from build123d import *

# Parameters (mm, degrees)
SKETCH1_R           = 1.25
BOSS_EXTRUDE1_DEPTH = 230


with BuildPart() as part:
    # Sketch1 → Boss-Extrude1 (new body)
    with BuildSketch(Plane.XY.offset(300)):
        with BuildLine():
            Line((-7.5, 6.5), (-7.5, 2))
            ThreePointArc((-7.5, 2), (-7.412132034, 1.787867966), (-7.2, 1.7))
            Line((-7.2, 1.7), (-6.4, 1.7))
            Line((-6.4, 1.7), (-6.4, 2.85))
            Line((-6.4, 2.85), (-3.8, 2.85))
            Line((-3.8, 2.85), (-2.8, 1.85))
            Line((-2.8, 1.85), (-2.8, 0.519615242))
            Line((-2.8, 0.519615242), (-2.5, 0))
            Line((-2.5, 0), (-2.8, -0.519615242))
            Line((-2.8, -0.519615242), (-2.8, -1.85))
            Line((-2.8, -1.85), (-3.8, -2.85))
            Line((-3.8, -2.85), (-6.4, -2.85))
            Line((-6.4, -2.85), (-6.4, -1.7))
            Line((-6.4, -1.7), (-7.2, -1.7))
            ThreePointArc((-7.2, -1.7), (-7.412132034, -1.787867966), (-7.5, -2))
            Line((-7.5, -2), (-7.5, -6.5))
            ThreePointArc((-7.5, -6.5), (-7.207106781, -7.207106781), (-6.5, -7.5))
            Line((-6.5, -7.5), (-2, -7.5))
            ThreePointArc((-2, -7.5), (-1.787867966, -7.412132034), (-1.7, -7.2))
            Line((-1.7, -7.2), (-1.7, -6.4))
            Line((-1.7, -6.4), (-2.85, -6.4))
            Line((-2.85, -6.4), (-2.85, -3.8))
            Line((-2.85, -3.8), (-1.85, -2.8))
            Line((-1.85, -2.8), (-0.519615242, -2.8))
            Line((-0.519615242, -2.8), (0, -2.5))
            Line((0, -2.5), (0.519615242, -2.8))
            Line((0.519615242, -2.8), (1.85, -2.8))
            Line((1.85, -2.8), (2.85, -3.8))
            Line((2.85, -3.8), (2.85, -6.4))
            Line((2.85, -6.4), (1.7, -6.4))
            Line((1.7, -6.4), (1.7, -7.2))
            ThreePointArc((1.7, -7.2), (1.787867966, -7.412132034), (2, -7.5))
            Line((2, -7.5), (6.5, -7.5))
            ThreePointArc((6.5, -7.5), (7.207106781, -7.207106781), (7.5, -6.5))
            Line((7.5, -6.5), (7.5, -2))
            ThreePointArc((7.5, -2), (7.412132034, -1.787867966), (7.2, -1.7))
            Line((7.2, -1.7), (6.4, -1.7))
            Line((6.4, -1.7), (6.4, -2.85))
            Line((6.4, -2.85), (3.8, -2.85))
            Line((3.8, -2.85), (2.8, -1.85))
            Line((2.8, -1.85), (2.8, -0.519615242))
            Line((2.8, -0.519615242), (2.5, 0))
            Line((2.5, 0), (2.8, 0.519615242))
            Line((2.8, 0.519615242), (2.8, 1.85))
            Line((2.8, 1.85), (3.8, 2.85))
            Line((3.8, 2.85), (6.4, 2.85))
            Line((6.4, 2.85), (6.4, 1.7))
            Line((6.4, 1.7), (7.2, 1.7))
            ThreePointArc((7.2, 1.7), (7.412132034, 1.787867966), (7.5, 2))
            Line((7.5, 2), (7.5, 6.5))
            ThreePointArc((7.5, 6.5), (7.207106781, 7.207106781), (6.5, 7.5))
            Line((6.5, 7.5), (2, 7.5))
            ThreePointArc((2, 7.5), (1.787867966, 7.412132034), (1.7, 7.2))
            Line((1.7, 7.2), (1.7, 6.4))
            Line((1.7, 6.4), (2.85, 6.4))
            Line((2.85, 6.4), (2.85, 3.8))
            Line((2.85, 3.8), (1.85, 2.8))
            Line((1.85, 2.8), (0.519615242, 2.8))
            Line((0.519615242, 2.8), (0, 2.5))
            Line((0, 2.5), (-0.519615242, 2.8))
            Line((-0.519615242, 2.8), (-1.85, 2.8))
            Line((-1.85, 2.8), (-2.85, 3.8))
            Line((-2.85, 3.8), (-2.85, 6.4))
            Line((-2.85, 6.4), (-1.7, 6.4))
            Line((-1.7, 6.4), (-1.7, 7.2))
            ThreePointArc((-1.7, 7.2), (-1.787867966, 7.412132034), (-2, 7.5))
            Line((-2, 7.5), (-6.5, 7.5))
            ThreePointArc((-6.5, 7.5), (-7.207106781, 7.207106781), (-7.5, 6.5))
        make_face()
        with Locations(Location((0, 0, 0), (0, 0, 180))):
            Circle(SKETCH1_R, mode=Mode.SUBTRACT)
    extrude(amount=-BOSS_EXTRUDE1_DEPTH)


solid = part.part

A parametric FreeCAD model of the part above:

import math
import FreeCAD as App
import Part
import Sketcher
from FreeCAD import Vector
Q = App.Units.Quantity

doc = App.newDocument("Part")
body = doc.addObject("PartDesign::Body", "Body")

sketch1 = body.newObject("Sketcher::SketchObject", "Sketch")
sketch1.AttachmentSupport = (doc.getObject("XY_Plane"), [""])
sketch1.MapMode = "FlatFace"
sketch1.AttachmentOffset = App.Placement(Vector(0, 0, 300), App.Rotation())
sketch1.addGeometry(Part.LineSegment(Vector(-7.5, 6.5, 0), Vector(-7.5, 2, 0)), False)
sketch1.addGeometry(Part.ArcOfCircle(Part.Circle(Vector(-7.2, 2, 0), Vector(0, 0, 1), 0.3), math.radians(-180), math.radians(-90)), False)
sketch1.addGeometry(Part.LineSegment(Vector(-7.2, 1.7, 0), Vector(-6.4, 1.7, 0)), False)
sketch1.addGeometry(Part.LineSegment(Vector(-6.4, 1.7, 0), Vector(-6.4, 2.85, 0)), False)
sketch1.addGeometry(Part.LineSegment(Vector(-6.4, 2.85, 0), Vector(-3.8, 2.85, 0)), False)
sketch1.addGeometry(Part.LineSegment(Vector(-3.8, 2.85, 0), Vector(-2.8, 1.85, 0)), False)
sketch1.addGeometry(Part.LineSegment(Vector(-2.8, 1.85, 0), Vector(-2.8, 0.52, 0)), False)
sketch1.addGeometry(Part.LineSegment(Vector(-2.8, 0.52, 0), Vector(-2.5, 0, 0)), False)
sketch1.addGeometry(Part.LineSegment(Vector(-2.5, 0, 0), Vector(-2.8, -0.52, 0)), False)
sketch1.addGeometry(Part.LineSegment(Vector(-2.8, -0.52, 0), Vector(-2.8, -1.85, 0)), False)
sketch1.addGeometry(Part.LineSegment(Vector(-2.8, -1.85, 0), Vector(-3.8, -2.85, 0)), False)
sketch1.addGeometry(Part.LineSegment(Vector(-3.8, -2.85, 0), Vector(-6.4, -2.85, 0)), False)
sketch1.addGeometry(Part.LineSegment(Vector(-6.4, -2.85, 0), Vector(-6.4, -1.7, 0)), False)
sketch1.addGeometry(Part.LineSegment(Vector(-6.4, -1.7, 0), Vector(-7.2, -1.7, 0)), False)
sketch1.addGeometry(Part.ArcOfCircle(Part.Circle(Vector(-7.2, -2, 0), Vector(0, 0, 1), 0.3), math.radians(90), math.radians(180)), False)
sketch1.addGeometry(Part.LineSegment(Vector(-7.5, -2, 0), Vector(-7.5, -6.5, 0)), False)
sketch1.addGeometry(Part.ArcOfCircle(Part.Circle(Vector(-6.5, -6.5, 0), Vector(0, 0, 1), 1), math.radians(-180), math.radians(-90)), False)
sketch1.addGeometry(Part.LineSegment(Vector(-6.5, -7.5, 0), Vector(-2, -7.5, 0)), False)
sketch1.addGeometry(Part.ArcOfCircle(Part.Circle(Vector(-2, -7.2, 0), Vector(0, 0, 1), 0.3), math.radians(-90), math.radians(0)), False)
sketch1.addGeometry(Part.LineSegment(Vector(-1.7, -7.2, 0), Vector(-1.7, -6.4, 0)), False)
sketch1.addGeometry(Part.LineSegment(Vector(-1.7, -6.4, 0), Vector(-2.85, -6.4, 0)), False)
sketch1.addGeometry(Part.LineSegment(Vector(-2.85, -6.4, 0), Vector(-2.85, -3.8, 0)), False)
sketch1.addGeometry(Part.LineSegment(Vector(-2.85, -3.8, 0), Vector(-1.85, -2.8, 0)), False)
sketch1.addGeometry(Part.LineSegment(Vector(-1.85, -2.8, 0), Vector(-0.52, -2.8, 0)), False)
sketch1.addGeometry(Part.LineSegment(Vector(-0.52, -2.8, 0), Vector(0, -2.5, 0)), False)
sketch1.addGeometry(Part.LineSegment(Vector(0, -2.5, 0), Vector(0.52, -2.8, 0)), False)
sketch1.addGeometry(Part.LineSegment(Vector(0.52, -2.8, 0), Vector(1.85, -2.8, 0)), False)
sketch1.addGeometry(Part.LineSegment(Vector(1.85, -2.8, 0), Vector(2.85, -3.8, 0)), False)
sketch1.addGeometry(Part.LineSegment(Vector(2.85, -3.8, 0), Vector(2.85, -6.4, 0)), False)
sketch1.addGeometry(Part.LineSegment(Vector(2.85, -6.4, 0), Vector(1.7, -6.4, 0)), False)
sketch1.addGeometry(Part.LineSegment(Vector(1.7, -6.4, 0), Vector(1.7, -7.2, 0)), False)
sketch1.addGeometry(Part.ArcOfCircle(Part.Circle(Vector(2, -7.2, 0), Vector(0, 0, 1), 0.3), math.radians(-180), math.radians(-90)), False)
sketch1.addGeometry(Part.LineSegment(Vector(2, -7.5, 0), Vector(6.5, -7.5, 0)), False)
sketch1.addGeometry(Part.ArcOfCircle(Part.Circle(Vector(6.5, -6.5, 0), Vector(0, 0, 1), 1), math.radians(-90), math.radians(0)), False)
sketch1.addGeometry(Part.LineSegment(Vector(7.5, -6.5, 0), Vector(7.5, -2, 0)), False)
sketch1.addGeometry(Part.ArcOfCircle(Part.Circle(Vector(7.2, -2, 0), Vector(0, 0, 1), 0.3), math.radians(0), math.radians(90)), False)
sketch1.addGeometry(Part.LineSegment(Vector(7.2, -1.7, 0), Vector(6.4, -1.7, 0)), False)
sketch1.addGeometry(Part.LineSegment(Vector(6.4, -1.7, 0), Vector(6.4, -2.85, 0)), False)
sketch1.addGeometry(Part.LineSegment(Vector(6.4, -2.85, 0), Vector(3.8, -2.85, 0)), False)
sketch1.addGeometry(Part.LineSegment(Vector(3.8, -2.85, 0), Vector(2.8, -1.85, 0)), False)
sketch1.addGeometry(Part.LineSegment(Vector(2.8, -1.85, 0), Vector(2.8, -0.52, 0)), False)
sketch1.addGeometry(Part.LineSegment(Vector(2.8, -0.52, 0), Vector(2.5, 0, 0)), False)
sketch1.addGeometry(Part.LineSegment(Vector(2.5, 0, 0), Vector(2.8, 0.52, 0)), False)
sketch1.addGeometry(Part.LineSegment(Vector(2.8, 0.52, 0), Vector(2.8, 1.85, 0)), False)
sketch1.addGeometry(Part.LineSegment(Vector(2.8, 1.85, 0), Vector(3.8, 2.85, 0)), False)
sketch1.addGeometry(Part.LineSegment(Vector(3.8, 2.85, 0), Vector(6.4, 2.85, 0)), False)
sketch1.addGeometry(Part.LineSegment(Vector(6.4, 2.85, 0), Vector(6.4, 1.7, 0)), False)
sketch1.addGeometry(Part.LineSegment(Vector(6.4, 1.7, 0), Vector(7.2, 1.7, 0)), False)
sketch1.addGeometry(Part.ArcOfCircle(Part.Circle(Vector(7.2, 2, 0), Vector(0, 0, 1), 0.3), math.radians(-90), math.radians(0)), False)
sketch1.addGeometry(Part.LineSegment(Vector(7.5, 2, 0), Vector(7.5, 6.5, 0)), False)
sketch1.addGeometry(Part.ArcOfCircle(Part.Circle(Vector(6.5, 6.5, 0), Vector(0, 0, 1), 1), math.radians(0), math.radians(90)), False)
sketch1.addGeometry(Part.LineSegment(Vector(6.5, 7.5, 0), Vector(2, 7.5, 0)), False)
sketch1.addGeometry(Part.ArcOfCircle(Part.Circle(Vector(2, 7.2, 0), Vector(0, 0, 1), 0.3), math.radians(90), math.radians(180)), False)
sketch1.addGeometry(Part.LineSegment(Vector(1.7, 7.2, 0), Vector(1.7, 6.4, 0)), False)
sketch1.addGeometry(Part.LineSegment(Vector(1.7, 6.4, 0), Vector(2.85, 6.4, 0)), False)
sketch1.addGeometry(Part.LineSegment(Vector(2.85, 6.4, 0), Vector(2.85, 3.8, 0)), False)
sketch1.addGeometry(Part.LineSegment(Vector(2.85, 3.8, 0), Vector(1.85, 2.8, 0)), False)
sketch1.addGeometry(Part.LineSegment(Vector(1.85, 2.8, 0), Vector(0.52, 2.8, 0)), False)
sketch1.addGeometry(Part.LineSegment(Vector(0.52, 2.8, 0), Vector(0, 2.5, 0)), False)
sketch1.addGeometry(Part.LineSegment(Vector(0, 2.5, 0), Vector(-0.52, 2.8, 0)), False)
sketch1.addGeometry(Part.LineSegment(Vector(-0.52, 2.8, 0), Vector(-1.85, 2.8, 0)), False)
sketch1.addGeometry(Part.LineSegment(Vector(-1.85, 2.8, 0), Vector(-2.85, 3.8, 0)), False)
sketch1.addGeometry(Part.LineSegment(Vector(-2.85, 3.8, 0), Vector(-2.85, 6.4, 0)), False)
sketch1.addGeometry(Part.LineSegment(Vector(-2.85, 6.4, 0), Vector(-1.7, 6.4, 0)), False)
sketch1.addGeometry(Part.LineSegment(Vector(-1.7, 6.4, 0), Vector(-1.7, 7.2, 0)), False)
sketch1.addGeometry(Part.ArcOfCircle(Part.Circle(Vector(-2, 7.2, 0), Vector(0, 0, 1), 0.3), math.radians(0), math.radians(90)), False)
sketch1.addGeometry(Part.LineSegment(Vector(-2, 7.5, 0), Vector(-6.5, 7.5, 0)), False)
sketch1.addGeometry(Part.ArcOfCircle(Part.Circle(Vector(-6.5, 6.5, 0), Vector(0, 0, 1), 1), math.radians(90), math.radians(180)), False)
sketch1.addGeometry(Part.Circle(Vector(0, 0, 0), Vector(0, 0, 1), 1.25), False)
sketch1.addConstraint(Sketcher.Constraint("Tangent", 0, 2, 1, 1))
sketch1.addConstraint(Sketcher.Constraint("Tangent", 1, 2, 2, 1))
sketch1.addConstraint(Sketcher.Constraint("Coincident", 2, 2, 3, 1))
sketch1.addConstraint(Sketcher.Constraint("Coincident", 3, 2, 4, 1))
sketch1.addConstraint(Sketcher.Constraint("Coincident", 4, 2, 5, 1))
sketch1.addConstraint(Sketcher.Constraint("Coincident", 5, 2, 6, 1))
sketch1.addConstraint(Sketcher.Constraint("Coincident", 6, 2, 7, 1))
sketch1.addConstraint(Sketcher.Constraint("Coincident", 7, 2, 8, 1))
sketch1.addConstraint(Sketcher.Constraint("Coincident", 8, 2, 9, 1))
sketch1.addConstraint(Sketcher.Constraint("Coincident", 9, 2, 10, 1))
sketch1.addConstraint(Sketcher.Constraint("Coincident", 10, 2, 11, 1))
sketch1.addConstraint(Sketcher.Constraint("Coincident", 11, 2, 12, 1))
sketch1.addConstraint(Sketcher.Constraint("Coincident", 12, 2, 13, 1))
sketch1.addConstraint(Sketcher.Constraint("Tangent", 13, 2, 14, 1))
sketch1.addConstraint(Sketcher.Constraint("Tangent", 14, 2, 15, 1))
sketch1.addConstraint(Sketcher.Constraint("Tangent", 15, 2, 16, 1))
sketch1.addConstraint(Sketcher.Constraint("Tangent", 16, 2, 17, 1))
sketch1.addConstraint(Sketcher.Constraint("Tangent", 17, 2, 18, 1))
sketch1.addConstraint(Sketcher.Constraint("Tangent", 18, 2, 19, 1))
sketch1.addConstraint(Sketcher.Constraint("Coincident", 19, 2, 20, 1))
sketch1.addConstraint(Sketcher.Constraint("Coincident", 20, 2, 21, 1))
sketch1.addConstraint(Sketcher.Constraint("Coincident", 21, 2, 22, 1))
sketch1.addConstraint(Sketcher.Constraint("Coincident", 22, 2, 23, 1))
sketch1.addConstraint(Sketcher.Constraint("Coincident", 23, 2, 24, 1))
sketch1.addConstraint(Sketcher.Constraint("Coincident", 24, 2, 25, 1))
sketch1.addConstraint(Sketcher.Constraint("Coincident", 25, 2, 26, 1))
sketch1.addConstraint(Sketcher.Constraint("Coincident", 26, 2, 27, 1))
sketch1.addConstraint(Sketcher.Constraint("Coincident", 27, 2, 28, 1))
sketch1.addConstraint(Sketcher.Constraint("Coincident", 28, 2, 29, 1))
sketch1.addConstraint(Sketcher.Constraint("Coincident", 29, 2, 30, 1))
sketch1.addConstraint(Sketcher.Constraint("Tangent", 30, 2, 31, 1))
sketch1.addConstraint(Sketcher.Constraint("Tangent", 31, 2, 32, 1))
sketch1.addConstraint(Sketcher.Constraint("Tangent", 32, 2, 33, 1))
sketch1.addConstraint(Sketcher.Constraint("Tangent", 33, 2, 34, 1))
sketch1.addConstraint(Sketcher.Constraint("Tangent", 34, 2, 35, 1))
sketch1.addConstraint(Sketcher.Constraint("Tangent", 35, 2, 36, 1))
sketch1.addConstraint(Sketcher.Constraint("Coincident", 36, 2, 37, 1))
sketch1.addConstraint(Sketcher.Constraint("Coincident", 37, 2, 38, 1))
sketch1.addConstraint(Sketcher.Constraint("Coincident", 38, 2, 39, 1))
sketch1.addConstraint(Sketcher.Constraint("Coincident", 39, 2, 40, 1))
sketch1.addConstraint(Sketcher.Constraint("Coincident", 40, 2, 41, 1))
sketch1.addConstraint(Sketcher.Constraint("Coincident", 41, 2, 42, 1))
sketch1.addConstraint(Sketcher.Constraint("Coincident", 42, 2, 43, 1))
sketch1.addConstraint(Sketcher.Constraint("Coincident", 43, 2, 44, 1))
sketch1.addConstraint(Sketcher.Constraint("Coincident", 44, 2, 45, 1))
sketch1.addConstraint(Sketcher.Constraint("Coincident", 45, 2, 46, 1))
sketch1.addConstraint(Sketcher.Constraint("Coincident", 46, 2, 47, 1))
sketch1.addConstraint(Sketcher.Constraint("Tangent", 47, 2, 48, 1))
sketch1.addConstraint(Sketcher.Constraint("Tangent", 48, 2, 49, 1))
sketch1.addConstraint(Sketcher.Constraint("Tangent", 49, 2, 50, 1))
sketch1.addConstraint(Sketcher.Constraint("Tangent", 50, 2, 51, 1))
sketch1.addConstraint(Sketcher.Constraint("Tangent", 51, 2, 52, 1))
sketch1.addConstraint(Sketcher.Constraint("Tangent", 52, 2, 53, 1))
sketch1.addConstraint(Sketcher.Constraint("Coincident", 53, 2, 54, 1))
sketch1.addConstraint(Sketcher.Constraint("Coincident", 54, 2, 55, 1))
sketch1.addConstraint(Sketcher.Constraint("Coincident", 55, 2, 56, 1))
sketch1.addConstraint(Sketcher.Constraint("Coincident", 56, 2, 57, 1))
sketch1.addConstraint(Sketcher.Constraint("Coincident", 57, 2, 58, 1))
sketch1.addConstraint(Sketcher.Constraint("Coincident", 58, 2, 59, 1))
sketch1.addConstraint(Sketcher.Constraint("Coincident", 59, 2, 60, 1))
sketch1.addConstraint(Sketcher.Constraint("Coincident", 60, 2, 61, 1))
sketch1.addConstraint(Sketcher.Constraint("Coincident", 61, 2, 62, 1))
sketch1.addConstraint(Sketcher.Constraint("Coincident", 62, 2, 63, 1))
sketch1.addConstraint(Sketcher.Constraint("Coincident", 63, 2, 64, 1))
sketch1.addConstraint(Sketcher.Constraint("Tangent", 64, 2, 65, 1))
sketch1.addConstraint(Sketcher.Constraint("Tangent", 65, 2, 66, 1))
sketch1.addConstraint(Sketcher.Constraint("Tangent", 66, 2, 67, 1))
sketch1.addConstraint(Sketcher.Constraint("Tangent", 67, 2, 0, 1))
sketch1.addConstraint(Sketcher.Constraint("Vertical", 0))
sketch1.addConstraint(Sketcher.Constraint("Horizontal", 2))
sketch1.addConstraint(Sketcher.Constraint("Vertical", 3))
sketch1.addConstraint(Sketcher.Constraint("Horizontal", 4))
sketch1.addConstraint(Sketcher.Constraint("Vertical", 6))
sketch1.addConstraint(Sketcher.Constraint("Vertical", 9))
sketch1.addConstraint(Sketcher.Constraint("Horizontal", 11))
sketch1.addConstraint(Sketcher.Constraint("Vertical", 12))
sketch1.addConstraint(Sketcher.Constraint("Horizontal", 13))
sketch1.addConstraint(Sketcher.Constraint("Vertical", 15))
sketch1.addConstraint(Sketcher.Constraint("Horizontal", 17))
sketch1.addConstraint(Sketcher.Constraint("Vertical", 19))
sketch1.addConstraint(Sketcher.Constraint("Horizontal", 20))
sketch1.addConstraint(Sketcher.Constraint("Vertical", 21))
sketch1.addConstraint(Sketcher.Constraint("Horizontal", 23))
sketch1.addConstraint(Sketcher.Constraint("Horizontal", 26))
sketch1.addConstraint(Sketcher.Constraint("Vertical", 28))
sketch1.addConstraint(Sketcher.Constraint("Horizontal", 29))
sketch1.addConstraint(Sketcher.Constraint("Vertical", 30))
sketch1.addConstraint(Sketcher.Constraint("Horizontal", 32))
sketch1.addConstraint(Sketcher.Constraint("Vertical", 34))
sketch1.addConstraint(Sketcher.Constraint("Horizontal", 36))
sketch1.addConstraint(Sketcher.Constraint("Vertical", 37))
sketch1.addConstraint(Sketcher.Constraint("Horizontal", 38))
sketch1.addConstraint(Sketcher.Constraint("Vertical", 40))
sketch1.addConstraint(Sketcher.Constraint("Vertical", 43))
sketch1.addConstraint(Sketcher.Constraint("Horizontal", 45))
sketch1.addConstraint(Sketcher.Constraint("Vertical", 46))
sketch1.addConstraint(Sketcher.Constraint("Horizontal", 47))
sketch1.addConstraint(Sketcher.Constraint("Vertical", 49))
sketch1.addConstraint(Sketcher.Constraint("Horizontal", 51))
sketch1.addConstraint(Sketcher.Constraint("Vertical", 53))
sketch1.addConstraint(Sketcher.Constraint("Horizontal", 54))
sketch1.addConstraint(Sketcher.Constraint("Vertical", 55))
sketch1.addConstraint(Sketcher.Constraint("Horizontal", 57))
sketch1.addConstraint(Sketcher.Constraint("Horizontal", 60))
sketch1.addConstraint(Sketcher.Constraint("Vertical", 62))
sketch1.addConstraint(Sketcher.Constraint("Horizontal", 63))
sketch1.addConstraint(Sketcher.Constraint("Vertical", 64))
sketch1.addConstraint(Sketcher.Constraint("Horizontal", 66))
sketch1.addConstraint(Sketcher.Constraint("Coincident", 68, 3, -1, 1))
sketch1.addConstraint(Sketcher.Constraint("Equal", 1, 14))
sketch1.addConstraint(Sketcher.Constraint("Equal", 14, 18))
sketch1.addConstraint(Sketcher.Constraint("Equal", 18, 31))
sketch1.addConstraint(Sketcher.Constraint("Equal", 16, 33))
sketch1.addConstraint(Sketcher.Constraint("Equal", 31, 35))
sketch1.addConstraint(Sketcher.Constraint("Equal", 35, 48))
sketch1.addConstraint(Sketcher.Constraint("Equal", 33, 50))
sketch1.addConstraint(Sketcher.Constraint("Equal", 48, 52))
sketch1.addConstraint(Sketcher.Constraint("Equal", 52, 65))
sketch1.addConstraint(Sketcher.Constraint("Equal", 50, 67))
sketch1.addConstraint(Sketcher.Constraint("Symmetric", 1, 3, 35, 3, -1, 1))
sketch1.addConstraint(Sketcher.Constraint("Symmetric", 14, 3, 48, 3, -1, 1))
sketch1.addConstraint(Sketcher.Constraint("Symmetric", 18, 3, 52, 3, -1, 1))
sketch1.addConstraint(Sketcher.Constraint("Symmetric", 31, 3, 65, 3, -1, 1))
sketch1.addConstraint(Sketcher.Constraint("Symmetric", 3, 2, 37, 2, -1, 1))
sketch1.addConstraint(Sketcher.Constraint("Symmetric", 5, 2, 39, 2, -1, 1))
sketch1.addConstraint(Sketcher.Constraint("Symmetric", 7, 2, 41, 2, -1, 1))
sketch1.addConstraint(Sketcher.Constraint("Symmetric", 8, 2, 42, 2, -1, 1))
sketch1.addConstraint(Sketcher.Constraint("Symmetric", 10, 2, 44, 2, -1, 1))
sketch1.addConstraint(Sketcher.Constraint("Symmetric", 20, 2, 54, 2, -1, 1))
sketch1.addConstraint(Sketcher.Constraint("Symmetric", 22, 2, 56, 2, -1, 1))
sketch1.addConstraint(Sketcher.Constraint("Symmetric", 24, 2, 58, 2, -1, 1))
sketch1.addConstraint(Sketcher.Constraint("Symmetric", 25, 2, 59, 2, -1, 1))
sketch1.addConstraint(Sketcher.Constraint("Symmetric", 27, 2, 61, 2, -1, 1))
sketch1.addConstraint(Sketcher.Constraint("Symmetric", 18, 3, 31, 3, -2))
sketch1.addConstraint(Sketcher.Constraint("Symmetric", 14, 3, 35, 3, -2))
sketch1.addConstraint(Sketcher.Constraint("Symmetric", 23, 2, 25, 2, -2))
sketch1.addConstraint(Sketcher.Constraint("Symmetric", 21, 2, 27, 2, -2))
sketch1.addConstraint(Sketcher.Constraint("Symmetric", 11, 2, 37, 2, -2))
sketch1.addConstraint(Sketcher.Constraint("Symmetric", 9, 2, 39, 2, -2))
sketch1.addConstraint(Sketcher.Constraint("PointOnObject", 7, 2, -1))
sketch1.addConstraint(Sketcher.Constraint("PointOnObject", 24, 2, -2))
sketch1.addConstraint(Sketcher.Constraint("Perpendicular", 5, 10))
sketch1.addConstraint(Sketcher.Constraint("Parallel", 10, 22))
sketch1.addConstraint(Sketcher.Constraint("Perpendicular", 7, 24))
sketch1.addConstraint(Sketcher.Constraint("Perpendicular", 8, 25))
sketch1.addConstraint(Sketcher.Constraint("Perpendicular", 22, 27))
sketch1.addConstraint(Sketcher.Constraint("Parallel", 27, 39))
sketch1.addConstraint(Sketcher.Constraint("Perpendicular", 24, 41))
sketch1.addConstraint(Sketcher.Constraint("Perpendicular", 39, 44))
sketch1.addConstraint(Sketcher.Constraint("Parallel", 44, 56))
sketch1.addConstraint(Sketcher.Constraint("Perpendicular", 41, 58))
sketch1.addConstraint(Sketcher.Constraint("Perpendicular", 56, 61))
sketch1.addConstraint(Sketcher.Constraint("Horizontal", 20, 2, 28, 2))
sketch1.addConstraint(Sketcher.Constraint("Horizontal", 54, 2, 62, 2))
sketch1.addConstraint(Sketcher.Constraint("Vertical", 4, 2, 10, 2))
sketch1.addConstraint(Sketcher.Constraint("Vertical", 37, 2, 45, 2))
sketch1.addConstraint(Sketcher.Constraint("Equal", 66, 0))
sketch1.addConstraint(Sketcher.Constraint("Equal", 63, 3))
sketch1.addConstraint(Sketcher.Constraint("Equal", 60, 6))
sketch1.addConstraint(Sketcher.Constraint("Equal", 47, 19))
sketch1.addConstraint(Sketcher.Constraint("Equal", 45, 21))
sketch1.addConstraint(Sketcher.Constraint("Equal", 10, 22))
sketch1.addConstraint(Sketcher.Constraint("Equal", 8, 24))
sketch1.addConstraint(Sketcher.Constraint("Radius", 16, 1.0))
sketch1.addConstraint(Sketcher.Constraint("Diameter", 68, 2.5))
sketch1.addConstraint(Sketcher.Constraint("Radius", 1, 0.3))
sketch1.addConstraint(Sketcher.Constraint("Angle", 7, Q("-60 deg")))
sketch1.addConstraint(Sketcher.Constraint("DistanceX", 2, 1, 2, 2, 0.8))
sketch1.addConstraint(Sketcher.Constraint("DistanceX", 4, 1, 4, 2, 2.6))
sketch1.addConstraint(Sketcher.Constraint("DistanceX", 17, 1, 17, 2, 4.5))
sketch1.addConstraint(Sketcher.Constraint("DistanceY", -1, 1, 1, 3, 2.0))
sketch1.addConstraint(Sketcher.Constraint("Distance", 7, 0.6))
sketch1.addConstraint(Sketcher.Constraint("DistanceX", 20, 2, 20, 1, 1.15))
sketch1.addConstraint(Sketcher.Constraint("DistanceX", 5, 2, -1, 1, 2.8))
pad1 = body.newObject("PartDesign::Pad", "Pad")
pad1.Profile = sketch1
pad1.Length = 230
pad1.Reversed = True

doc.recompute()
